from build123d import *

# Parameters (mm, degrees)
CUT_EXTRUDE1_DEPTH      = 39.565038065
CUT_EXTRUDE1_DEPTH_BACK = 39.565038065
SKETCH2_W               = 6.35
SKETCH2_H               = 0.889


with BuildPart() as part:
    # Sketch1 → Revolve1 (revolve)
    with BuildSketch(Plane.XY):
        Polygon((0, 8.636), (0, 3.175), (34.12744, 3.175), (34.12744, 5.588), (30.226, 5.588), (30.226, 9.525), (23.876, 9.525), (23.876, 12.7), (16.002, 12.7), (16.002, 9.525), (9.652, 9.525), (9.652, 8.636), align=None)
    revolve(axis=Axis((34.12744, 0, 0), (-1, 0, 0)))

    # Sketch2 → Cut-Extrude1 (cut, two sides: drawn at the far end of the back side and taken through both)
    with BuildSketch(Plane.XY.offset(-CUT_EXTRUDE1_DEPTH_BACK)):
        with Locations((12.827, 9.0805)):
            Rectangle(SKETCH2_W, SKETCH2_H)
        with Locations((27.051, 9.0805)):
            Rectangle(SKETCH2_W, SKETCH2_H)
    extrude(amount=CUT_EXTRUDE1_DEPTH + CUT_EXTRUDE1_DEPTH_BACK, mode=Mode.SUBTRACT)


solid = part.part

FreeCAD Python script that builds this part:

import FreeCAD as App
import Part
import Sketcher

V = App.Vector
Q = App.Units.Quantity


def add_polygon(sketch, points):
    """Adds a closed chain of lines whose ends are joined by coincident constraints."""
    first, n = sketch.GeometryCount, len(points)
    for a, b in zip(points, points[1:] + points[:1]):
        sketch.addGeometry(Part.LineSegment(App.Vector(*a, 0), App.Vector(*b, 0)), False)
    for i in range(n):
        sketch.addConstraint(Sketcher.Constraint("Coincident", first + i, 2, first + (i + 1) % n, 1))

doc = App.newDocument("Part")
body = doc.addObject("PartDesign::Body", "Body")

# Sketch on XY plane
sketch1 = body.newObject("Sketcher::SketchObject", "Sketch")
sketch1.AttachmentSupport = (doc.getObject("XY_Plane"), [""])
sketch1.MapMode = "FlatFace"
add_polygon(sketch1, [(0, 8.6), (0, 3.2), (34.1, 3.2), (34.1, 5.6), (30.2, 5.6), (30.2, 9.5), (23.9, 9.5), (23.9, 12.7), (16, 12.7), (16, 9.5), (9.7, 9.5), (9.7, 8.6)])  # lines 0-11
sketch1.addConstraint(Sketcher.Constraint("Vertical", 0))
sketch1.addConstraint(Sketcher.Constraint("Horizontal", 1))
sketch1.addConstraint(Sketcher.Constraint("Vertical", 2))
sketch1.addConstraint(Sketcher.Constraint("Horizontal", 3))
sketch1.addConstraint(Sketcher.Constraint("Vertical", 4))
sketch1.addConstraint(Sketcher.Constraint("Horizontal", 5))
sketch1.addConstraint(Sketcher.Constraint("Vertical", 6))
sketch1.addConstraint(Sketcher.Constraint("Horizontal", 7))
sketch1.addConstraint(Sketcher.Constraint("Vertical", 8))
sketch1.addConstraint(Sketcher.Constraint("Horizontal", 9))
sketch1.addConstraint(Sketcher.Constraint("Vertical", 10))
sketch1.addConstraint(Sketcher.Constraint("Horizontal", 11))
sketch1.addConstraint(Sketcher.Constraint("PointOnObject", 0, 2, -2))
sketch1.addConstraint(Sketcher.Constraint("Horizontal", 5, 2, 8, 2))
sketch1.addConstraint(Sketcher.Constraint("Equal", 5, 9))
sketch1.addConstraint(Sketcher.Constraint("DistanceX", 5, 2, 5, 1, Q("0.25 in")))
sketch1.addConstraint(Sketcher.Constraint("DistanceX", 7, 2, 7, 1, Q("0.31 in")))
sketch1.addConstraint(Sketcher.Constraint("DistanceX", 11, 2, 11, 1, Q("0.38 in")))
sketch1.addConstraint(Sketcher.Constraint("DistanceY", -1, 1, 6, 2, Q("0.5 in")))
sketch1.addConstraint(Sketcher.Constraint("DistanceY", 0, 2, 0, 1, Q("0.215 in")))
sketch1.addConstraint(Sketcher.Constraint("DistanceY", 2, 1, 2, 2, Q("0.095 in")))
sketch1.addConstraint(Sketcher.Constraint("DistanceY", 4, 1, 4, 2, Q("0.155 in")))
sketch1.addConstraint(Sketcher.Constraint("DistanceY", 6, 1, 6, 2, Q("0.125 in")))
sketch1.addConstraint(Sketcher.Constraint("DistanceX", 1, 1, 1, 2, Q("1.3436 in")))
revolution = body.newObject("PartDesign::Revolution", "Revolution")
revolution.Profile = sketch1
revolution.ReferenceAxis = (sketch1, ["H_Axis"])
revolution.Angle = 360

# Sketch on XY plane
sketch2 = body.newObject("Sketcher::SketchObject", "Sketch001")
sketch2.AttachmentSupport = (doc.getObject("XY_Plane"), [""])
sketch2.MapMode = "FlatFace"
add_polygon(sketch2, [(9.7, 9.5), (9.7, 8.6), (16, 8.6), (16, 9.5)])  # lines 0-3
add_polygon(sketch2, [(23.9, 9.5), (23.9, 8.6), (30.2, 8.6), (30.2, 9.5)])  # lines 4-7
sketch2.addConstraint(Sketcher.Constraint("Vertical", 0))
sketch2.addConstraint(Sketcher.Constraint("Horizontal", 1))
sketch2.addConstraint(Sketcher.Constraint("Vertical", 2))
sketch2.addConstraint(Sketcher.Constraint("Horizontal", 3))
sketch2.addConstraint(Sketcher.Constraint("Vertical", 4))
sketch2.addConstraint(Sketcher.Constraint("Horizontal", 5))
sketch2.addConstraint(Sketcher.Constraint("Vertical", 6))
sketch2.addConstraint(Sketcher.Constraint("Horizontal", 7))
sketch2.addConstraint(Sketcher.Constraint("Horizontal", 1, 2, 4, 2))
sketch2.addConstraint(Sketcher.Constraint("Horizontal", 3, 2, 6, 2))
sketch2.addConstraint(Sketcher.Constraint("Equal", 3, 5))
sketch2.addConstraint(Sketcher.Constraint("DistanceX", 1, 1, 1, 2, Q("0.25 in")))
sketch2.addConstraint(Sketcher.Constraint("DistanceY", 0, 2, 0, 1, Q("0.035 in")))
sketch2.addConstraint(Sketcher.Constraint("DistanceX", -1, 1, 0, 2, Q("0.38 in")))
sketch2.addConstraint(Sketcher.Constraint("DistanceY", -1, 1, 0, 2, Q("0.34 in")))
sketch2.addConstraint(Sketcher.Constraint("DistanceX", -1, 1, 4, 2, Q("0.94 in")))
pocket1 = body.newObject("PartDesign::Pocket", "Pocket")
pocket1.Profile = sketch2
pocket1.Type = "ThroughAll"
pocket1.Midplane = True

doc.recompute()
